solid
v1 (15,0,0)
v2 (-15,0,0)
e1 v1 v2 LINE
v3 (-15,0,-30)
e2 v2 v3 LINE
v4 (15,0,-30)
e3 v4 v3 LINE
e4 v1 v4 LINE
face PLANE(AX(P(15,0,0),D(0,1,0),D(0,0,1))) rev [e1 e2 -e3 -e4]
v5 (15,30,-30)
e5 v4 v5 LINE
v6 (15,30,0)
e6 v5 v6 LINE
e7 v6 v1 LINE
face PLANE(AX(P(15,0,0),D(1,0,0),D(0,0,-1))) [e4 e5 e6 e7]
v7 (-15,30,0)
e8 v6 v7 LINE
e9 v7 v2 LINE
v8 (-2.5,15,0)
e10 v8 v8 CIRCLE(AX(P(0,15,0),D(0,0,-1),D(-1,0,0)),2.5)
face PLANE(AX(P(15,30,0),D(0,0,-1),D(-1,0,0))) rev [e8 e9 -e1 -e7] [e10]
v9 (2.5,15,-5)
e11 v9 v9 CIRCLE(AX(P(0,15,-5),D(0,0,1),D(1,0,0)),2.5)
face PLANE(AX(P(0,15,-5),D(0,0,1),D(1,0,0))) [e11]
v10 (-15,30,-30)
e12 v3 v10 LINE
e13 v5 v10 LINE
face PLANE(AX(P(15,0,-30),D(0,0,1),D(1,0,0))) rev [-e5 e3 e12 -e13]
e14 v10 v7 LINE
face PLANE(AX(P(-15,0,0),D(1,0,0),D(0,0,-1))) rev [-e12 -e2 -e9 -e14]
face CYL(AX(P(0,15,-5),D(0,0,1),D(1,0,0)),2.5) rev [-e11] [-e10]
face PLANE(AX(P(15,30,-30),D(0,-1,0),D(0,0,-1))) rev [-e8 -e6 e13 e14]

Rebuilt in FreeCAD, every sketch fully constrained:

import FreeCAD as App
import Part
import Sketcher

V = App.Vector
Q = App.Units.Quantity


def add_polygon(sketch, points):
    """Adds a closed chain of lines whose ends are joined by coincident constraints."""
    first, n = sketch.GeometryCount, len(points)
    for a, b in zip(points, points[1:] + points[:1]):
        sketch.addGeometry(Part.LineSegment(App.Vector(*a, 0), App.Vector(*b, 0)), False)
    for i in range(n):
        sketch.addConstraint(Sketcher.Constraint("Coincident", first + i, 2, first + (i + 1) % n, 1))

doc = App.newDocument("Part")
body = doc.addObject("PartDesign::Body", "Body")

sketch1 = body.newObject("Sketcher::SketchObject", "Sketch")
sketch1.AttachmentSupport = (doc.getObject("YZ_Plane"), [""])
sketch1.MapMode = "FlatFace"
add_polygon(sketch1, [(30, 0), (0, 0), (0, -30), (30, -30)])
sketch1.addConstraint(Sketcher.Constraint("Horizontal", 0))
sketch1.addConstraint(Sketcher.Constraint("Vertical", 1))
sketch1.addConstraint(Sketcher.Constraint("Horizontal", 2))
sketch1.addConstraint(Sketcher.Constraint("Vertical", 3))
sketch1.addConstraint(Sketcher.Constraint("Coincident", 0, 2, -1, 1))
sketch1.addConstraint(Sketcher.Constraint("Equal", 2, 1))
sketch1.addConstraint(Sketcher.Constraint("DistanceX", 0, 2, 0, 1, Q("30 mm")))
pad1 = body.newObject("PartDesign::Pad", "Pad")
pad1.Profile = sketch1
pad1.Length = 30
pad1.Midplane = True

sketch2 = body.newObject("Sketcher::SketchObject", "Sketch001")
sketch2.AttachmentSupport = (doc.getObject("XY_Plane"), [""])
sketch2.MapMode = "FlatFace"
sketch2.addGeometry(Part.Circle(V(0, 15, 0), V(0, 0, 1), 2.5), False)
sketch2.addConstraint(Sketcher.Constraint("PointOnObject", 0, 3, -2))
sketch2.addConstraint(Sketcher.Constraint("Diameter", 0, Q("5 mm")))
sketch2.addConstraint(Sketcher.Constraint("DistanceY", -1, 1, 0, 3, Q("15 mm")))
pocket1 = body.newObject("PartDesign::Pocket", "Pocket")
pocket1.Profile = sketch2
pocket1.Length = 10
pocket1.Midplane = True

doc.recompute()
